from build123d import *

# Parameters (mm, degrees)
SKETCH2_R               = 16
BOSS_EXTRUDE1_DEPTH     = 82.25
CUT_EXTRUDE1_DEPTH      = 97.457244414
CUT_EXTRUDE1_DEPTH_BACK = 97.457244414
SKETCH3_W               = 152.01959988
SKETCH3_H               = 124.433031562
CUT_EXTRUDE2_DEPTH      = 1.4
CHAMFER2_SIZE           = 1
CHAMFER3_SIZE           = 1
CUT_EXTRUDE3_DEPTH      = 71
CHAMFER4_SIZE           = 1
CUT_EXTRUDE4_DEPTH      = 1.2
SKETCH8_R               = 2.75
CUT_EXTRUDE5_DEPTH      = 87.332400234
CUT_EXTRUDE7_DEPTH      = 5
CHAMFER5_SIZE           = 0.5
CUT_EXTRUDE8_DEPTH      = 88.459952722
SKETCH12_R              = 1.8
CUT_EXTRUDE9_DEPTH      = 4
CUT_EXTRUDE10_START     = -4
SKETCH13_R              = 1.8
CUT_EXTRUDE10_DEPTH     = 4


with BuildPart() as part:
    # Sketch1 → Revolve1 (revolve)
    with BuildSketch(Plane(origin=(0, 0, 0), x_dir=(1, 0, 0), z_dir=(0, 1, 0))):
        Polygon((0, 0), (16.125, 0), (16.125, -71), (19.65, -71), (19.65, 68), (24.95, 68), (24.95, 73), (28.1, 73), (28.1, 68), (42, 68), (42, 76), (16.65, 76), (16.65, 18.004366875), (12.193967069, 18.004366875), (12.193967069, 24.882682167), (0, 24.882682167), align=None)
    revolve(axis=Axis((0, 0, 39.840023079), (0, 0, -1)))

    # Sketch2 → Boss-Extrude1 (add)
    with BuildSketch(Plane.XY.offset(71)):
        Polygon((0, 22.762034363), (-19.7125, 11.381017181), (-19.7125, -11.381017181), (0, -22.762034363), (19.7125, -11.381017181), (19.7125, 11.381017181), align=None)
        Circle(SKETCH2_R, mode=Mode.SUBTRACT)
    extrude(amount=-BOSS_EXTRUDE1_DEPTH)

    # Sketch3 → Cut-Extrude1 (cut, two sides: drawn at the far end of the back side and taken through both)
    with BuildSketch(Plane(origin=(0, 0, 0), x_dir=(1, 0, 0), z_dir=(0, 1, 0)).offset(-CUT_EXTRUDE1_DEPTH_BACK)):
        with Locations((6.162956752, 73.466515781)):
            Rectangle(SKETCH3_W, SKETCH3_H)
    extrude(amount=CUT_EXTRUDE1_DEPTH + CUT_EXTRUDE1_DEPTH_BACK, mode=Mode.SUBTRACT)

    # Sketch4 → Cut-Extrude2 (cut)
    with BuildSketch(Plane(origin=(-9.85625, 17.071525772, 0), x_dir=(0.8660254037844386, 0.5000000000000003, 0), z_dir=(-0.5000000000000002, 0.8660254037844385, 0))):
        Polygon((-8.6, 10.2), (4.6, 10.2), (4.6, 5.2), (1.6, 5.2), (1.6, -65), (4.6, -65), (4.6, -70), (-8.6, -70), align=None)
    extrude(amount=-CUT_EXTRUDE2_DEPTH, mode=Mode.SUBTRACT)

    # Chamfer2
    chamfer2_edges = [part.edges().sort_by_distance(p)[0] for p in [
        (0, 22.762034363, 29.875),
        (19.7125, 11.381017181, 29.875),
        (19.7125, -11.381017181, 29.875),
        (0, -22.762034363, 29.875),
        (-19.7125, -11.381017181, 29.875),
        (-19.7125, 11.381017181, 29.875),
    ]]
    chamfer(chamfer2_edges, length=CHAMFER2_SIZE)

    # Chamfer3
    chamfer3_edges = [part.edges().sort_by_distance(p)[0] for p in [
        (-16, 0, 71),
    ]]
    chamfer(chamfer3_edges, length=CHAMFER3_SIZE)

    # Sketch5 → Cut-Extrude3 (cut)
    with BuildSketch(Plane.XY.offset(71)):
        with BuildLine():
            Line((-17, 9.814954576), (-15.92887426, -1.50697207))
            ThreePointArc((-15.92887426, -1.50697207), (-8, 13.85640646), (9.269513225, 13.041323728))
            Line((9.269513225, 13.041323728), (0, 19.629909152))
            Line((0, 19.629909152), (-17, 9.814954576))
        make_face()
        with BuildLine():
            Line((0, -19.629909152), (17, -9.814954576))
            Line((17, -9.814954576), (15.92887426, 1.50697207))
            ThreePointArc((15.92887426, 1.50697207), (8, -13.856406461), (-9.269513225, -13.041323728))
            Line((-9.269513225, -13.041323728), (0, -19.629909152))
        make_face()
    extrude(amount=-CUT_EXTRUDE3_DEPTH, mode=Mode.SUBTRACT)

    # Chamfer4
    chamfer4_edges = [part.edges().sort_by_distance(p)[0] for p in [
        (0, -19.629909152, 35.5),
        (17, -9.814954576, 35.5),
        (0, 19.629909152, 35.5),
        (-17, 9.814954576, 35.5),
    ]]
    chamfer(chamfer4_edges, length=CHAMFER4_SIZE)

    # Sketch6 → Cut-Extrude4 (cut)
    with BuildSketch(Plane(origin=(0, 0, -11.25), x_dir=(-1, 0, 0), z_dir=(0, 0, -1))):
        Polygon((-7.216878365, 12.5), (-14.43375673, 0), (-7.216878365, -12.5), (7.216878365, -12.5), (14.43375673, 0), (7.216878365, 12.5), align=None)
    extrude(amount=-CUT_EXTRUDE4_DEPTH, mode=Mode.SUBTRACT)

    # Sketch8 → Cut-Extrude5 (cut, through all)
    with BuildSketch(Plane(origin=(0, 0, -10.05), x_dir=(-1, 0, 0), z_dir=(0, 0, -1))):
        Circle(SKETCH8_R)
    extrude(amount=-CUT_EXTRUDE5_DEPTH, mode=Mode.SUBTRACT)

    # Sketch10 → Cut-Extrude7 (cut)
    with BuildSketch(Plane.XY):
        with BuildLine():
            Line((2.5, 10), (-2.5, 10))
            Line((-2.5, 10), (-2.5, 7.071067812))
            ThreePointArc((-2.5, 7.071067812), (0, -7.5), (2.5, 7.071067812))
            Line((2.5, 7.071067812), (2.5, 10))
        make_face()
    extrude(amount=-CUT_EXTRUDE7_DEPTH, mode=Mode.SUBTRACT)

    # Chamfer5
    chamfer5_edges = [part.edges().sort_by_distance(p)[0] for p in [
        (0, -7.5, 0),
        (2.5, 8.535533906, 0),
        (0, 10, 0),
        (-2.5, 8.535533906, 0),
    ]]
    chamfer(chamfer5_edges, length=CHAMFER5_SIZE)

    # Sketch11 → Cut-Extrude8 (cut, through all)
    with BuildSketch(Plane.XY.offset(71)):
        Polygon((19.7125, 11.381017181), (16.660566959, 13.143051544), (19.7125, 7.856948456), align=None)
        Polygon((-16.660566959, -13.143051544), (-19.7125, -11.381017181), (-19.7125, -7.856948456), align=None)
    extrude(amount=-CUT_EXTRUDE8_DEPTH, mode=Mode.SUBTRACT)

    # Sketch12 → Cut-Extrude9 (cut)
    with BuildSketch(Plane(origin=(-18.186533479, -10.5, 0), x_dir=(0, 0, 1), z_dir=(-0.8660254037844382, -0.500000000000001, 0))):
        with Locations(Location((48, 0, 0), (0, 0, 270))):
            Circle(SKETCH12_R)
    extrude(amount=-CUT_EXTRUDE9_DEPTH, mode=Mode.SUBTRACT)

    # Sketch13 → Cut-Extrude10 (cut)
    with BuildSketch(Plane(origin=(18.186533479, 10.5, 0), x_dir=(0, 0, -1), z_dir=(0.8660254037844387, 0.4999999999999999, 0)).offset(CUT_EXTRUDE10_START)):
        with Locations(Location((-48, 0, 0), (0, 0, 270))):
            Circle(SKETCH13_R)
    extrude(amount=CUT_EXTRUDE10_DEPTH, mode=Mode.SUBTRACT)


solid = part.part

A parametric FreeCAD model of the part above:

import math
import FreeCAD as App
import Part
import Sketcher
from FreeCAD import Vector
Q = App.Units.Quantity


def edges_at(feature, points):
    """Names of the edges that pass closest to the given points."""
    edges = feature.Shape.Edges
    near = lambda p: min(range(len(edges)), key=lambda i: edges[i].distToShape(Part.Vertex(*p))[0])
    return sorted({f"Edge{near(p) + 1}" for p in points})


def add_polygon(sketch, points):
    """Adds a closed chain of lines whose ends are joined by coincident constraints."""
    first, n = sketch.GeometryCount, len(points)
    for a, b in zip(points, points[1:] + points[:1]):
        sketch.addGeometry(Part.LineSegment(App.Vector(*a, 0), App.Vector(*b, 0)), False)
    for i in range(n):
        sketch.addConstraint(Sketcher.Constraint("Coincident", first + i, 2, first + (i + 1) % n, 1))

doc = App.newDocument("Part")
body = doc.addObject("PartDesign::Body", "Body")

# Sketch on XZ plane
sketch1 = body.newObject("Sketcher::SketchObject", "Sketch")
sketch1.AttachmentSupport = (doc.getObject("XZ_Plane"), [""])
sketch1.MapMode = "FlatFace"
add_polygon(sketch1, [(0, 0), (16.1, 0), (16.1, 71), (19.6, 71), (19.6, -68), (24.9, -68), (24.9, -73), (28.1, -73), (28.1, -68), (42, -68), (42, -76), (16.6, -76), (16.6, -18), (12.2, -18), (12.2, -24.9), (0, -24.9)])  # lines 0-15
sketch1.addConstraint(Sketcher.Constraint("Horizontal", 0))
sketch1.addConstraint(Sketcher.Constraint("Vertical", 1))
sketch1.addConstraint(Sketcher.Constraint("Horizontal", 2))
sketch1.addConstraint(Sketcher.Constraint("Vertical", 3))
sketch1.addConstraint(Sketcher.Constraint("Horizontal", 4))
sketch1.addConstraint(Sketcher.Constraint("Vertical", 5))
sketch1.addConstraint(Sketcher.Constraint("Horizontal", 6))
sketch1.addConstraint(Sketcher.Constraint("Vertical", 7))
sketch1.addConstraint(Sketcher.Constraint("Horizontal", 8))
sketch1.addConstraint(Sketcher.Constraint("Vertical", 9))
sketch1.addConstraint(Sketcher.Constraint("Horizontal", 10))
sketch1.addConstraint(Sketcher.Constraint("Vertical", 11))
sketch1.addConstraint(Sketcher.Constraint("Horizontal", 12))
sketch1.addConstraint(Sketcher.Constraint("Vertical", 13))
sketch1.addConstraint(Sketcher.Constraint("Horizontal", 14))
sketch1.addConstraint(Sketcher.Constraint("Vertical", 15))
sketch1.addConstraint(Sketcher.Constraint("Coincident", 15, 2, -1, 1))
sketch1.addConstraint(Sketcher.Constraint("Horizontal", 4, 2, 7, 2))
sketch1.addConstraint(Sketcher.Constraint("DistanceY", 1, 1, 1, 2, Q("71 mm")))
sketch1.addConstraint(Sketcher.Constraint("DistanceY", 3, 2, 3, 1, Q("139 mm")))
sketch1.addConstraint(Sketcher.Constraint("DistanceY", 5, 2, 5, 1, Q("5 mm")))
sketch1.addConstraint(Sketcher.Constraint("DistanceY", 9, 2, 9, 1, Q("8 mm")))
sketch1.addConstraint(Sketcher.Constraint("DistanceX", 4, 1, 4, 2, Q("5.3 mm")))
sketch1.addConstraint(Sketcher.Constraint("DistanceX", 8, 1, 8, 2, Q("13.9 mm")))
sketch1.addConstraint(Sketcher.Constraint("DistanceX", -1, 1, 8, 2, Q("42 mm")))
sketch1.addConstraint(Sketcher.Constraint("DistanceX", 10, 2, 3, 2, Q("3 mm")))
sketch1.addConstraint(Sketcher.Constraint("DistanceX", 6, 1, 6, 2, Q("3.15 mm")))
sketch1.addConstraint(Sketcher.Constraint("DistanceX", 0, 1, 0, 2, Q("16.125 mm")))
sketch1.addConstraint(Sketcher.Constraint("DistanceX", 12, 2, 12, 1, Q("4.456033 mm")))
sketch1.addConstraint(Sketcher.Constraint("DistanceY", 11, 1, 11, 2, Q("57.995633 mm")))
sketch1.addConstraint(Sketcher.Constraint("DistanceY", 13, 2, 13, 1, Q("6.878315 mm")))
revolution = body.newObject("PartDesign::Revolution", "Revolution")
revolution.Profile = sketch1
revolution.ReferenceAxis = (sketch1, ["V_Axis"])
revolution.Angle = 360

# Sketch on XY plane
sketch2 = body.newObject("Sketcher::SketchObject", "Sketch001")
sketch2.AttachmentSupport = (doc.getObject("XY_Plane"), [""])
sketch2.MapMode = "FlatFace"
sketch2.AttachmentOffset = App.Placement(Vector(0, 0, 71), App.Rotation())
add_polygon(sketch2, [(0, 23), (-20, 11), (-20, -11), (0, -23), (20, -11), (20, 11)])  # lines 0-5
sketch2.addGeometry(Part.Circle(Vector(0, 0, 0), Vector(0, 0, 1), 16), False)  # 6
sketch2.addConstraint(Sketcher.Constraint("Vertical", 1))
sketch2.addConstraint(Sketcher.Constraint("Vertical", 4))
sketch2.addConstraint(Sketcher.Constraint("Coincident", 6, 3, -1, 1))
sketch2.addConstraint(Sketcher.Constraint("Symmetric", 0, 2, 3, 2, -1, 1))
sketch2.addConstraint(Sketcher.Constraint("Symmetric", 2, 2, 5, 2, -1, 1))
sketch2.addConstraint(Sketcher.Constraint("PointOnObject", 2, 2, -2))
sketch2.addConstraint(Sketcher.Constraint("Parallel", 2, 5))
sketch2.addConstraint(Sketcher.Constraint("Horizontal", 1, 2, 3, 2))
sketch2.addConstraint(Sketcher.Constraint("Diameter", 6, Q("32 mm")))
sketch2.addConstraint(Sketcher.Constraint("Angle", 0, Q("-150 deg")))
sketch2.addConstraint(Sketcher.Constraint("DistanceX", 1, 2, 3, 2, Q("39.425 mm")))
sketch2.addConstraint(Sketcher.Constraint("DistanceY", 1, 2, 1, 1, Q("22.762034 mm")))
pad1 = body.newObject("PartDesign::Pad", "Pad")
pad1.Profile = sketch2
pad1.Length = 82.25
pad1.Reversed = True

# Sketch on XZ plane
sketch3 = body.newObject("Sketcher::SketchObject", "Sketch002")
sketch3.AttachmentSupport = (doc.getObject("XZ_Plane"), [""])
sketch3.MapMode = "FlatFace"
add_polygon(sketch3, [(-70, -136), (-70, -11), (82, -11), (82, -136)])  # lines 0-3
sketch3.addConstraint(Sketcher.Constraint("Vertical", 0))
sketch3.addConstraint(Sketcher.Constraint("Horizontal", 1))
sketch3.addConstraint(Sketcher.Constraint("Vertical", 2))
sketch3.addConstraint(Sketcher.Constraint("Horizontal", 3))
sketch3.addConstraint(Sketcher.Constraint("DistanceY", 0, 2, -1, 1, Q("11.25 mm")))
sketch3.addConstraint(Sketcher.Constraint("DistanceX", 1, 1, 1, 2, Q("152.0196 mm")))
sketch3.addConstraint(Sketcher.Constraint("DistanceY", 0, 1, 0, 2, Q("124.433032 mm")))
sketch3.addConstraint(Sketcher.Constraint("DistanceX", 0, 2, -1, 1, Q("69.846843 mm")))
pocket1 = body.newObject("PartDesign::Pocket", "Pocket")
pocket1.Profile = sketch3
pocket1.Type = "ThroughAll"
pocket1.Midplane = True

# Sketch on an angled plane
sketch4 = body.newObject("Sketcher::SketchObject", "Sketch003")
sketch4.Placement = App.Placement(Vector(-9.85625, 17.071526, 0), App.Rotation(Vector(0.866025404, 0.5, 0), Vector(0, 0, -1), Vector(-0.5, 0.866025404, 0), "ZXY"))
add_polygon(sketch4, [(4.6, 10.2), (-8.6, 10.2), (-8.6, -70), (4.6, -70), (4.6, -65), (1.6, -65), (1.6, 5.2), (4.6, 5.2)])  # lines 0-7
sketch4.addConstraint(Sketcher.Constraint("Horizontal", 0))
sketch4.addConstraint(Sketcher.Constraint("Vertical", 1))
sketch4.addConstraint(Sketcher.Constraint("Horizontal", 2))
sketch4.addConstraint(Sketcher.Constraint("Vertical", 3))
sketch4.addConstraint(Sketcher.Constraint("Horizontal", 4))
sketch4.addConstraint(Sketcher.Constraint("Vertical", 5))
sketch4.addConstraint(Sketcher.Constraint("Horizontal", 6))
sketch4.addConstraint(Sketcher.Constraint("Vertical", 7))
sketch4.addConstraint(Sketcher.Constraint("Vertical", 3, 2, 6, 2))
sketch4.addConstraint(Sketcher.Constraint("Equal", 3, 7))
sketch4.addConstraint(Sketcher.Constraint("DistanceX", 4, 2, 4, 1, Q("3 mm")))
sketch4.addConstraint(Sketcher.Constraint("DistanceY", 3, 1, 3, 2, Q("5 mm")))
sketch4.addConstraint(Sketcher.Constraint("DistanceX", 0, 2, 0, 1, Q("13.2 mm")))
sketch4.addConstraint(Sketcher.Constraint("DistanceY", 1, 2, 1, 1, Q("80.2 mm")))
sketch4.addConstraint(Sketcher.Constraint("DistanceY", 1, 2, -1, 1, Q("70 mm")))
sketch4.addConstraint(Sketcher.Constraint("DistanceX", 0, 2, -1, 1, Q("8.6 mm")))
pocket2 = body.newObject("PartDesign::Pocket", "Pocket001")
pocket2.Profile = sketch4
pocket2.Length = 1.4
doc.recompute()

chamfer = body.newObject("PartDesign::Chamfer", "Chamfer")
chamfer.Base = (pocket2, edges_at(pocket2, [
    (0, 22.762, 29.875),
    (19.712, 11.381, 29.875),
    (19.712, -11.381, 29.875),
    (0, -22.762, 29.875),
    (-19.712, -11.381, 29.875),
    (-19.712, 11.381, 29.875),
]))
chamfer.Size = 1
doc.recompute()

chamfer2 = body.newObject("PartDesign::Chamfer", "Chamfer001")
chamfer2.Base = (chamfer, edges_at(chamfer, [(-16, 0, 71)]))
chamfer2.Size = 1

# Sketch on XY plane
sketch5 = body.newObject("Sketcher::SketchObject", "Sketch004")
sketch5.AttachmentSupport = (doc.getObject("XY_Plane"), [""])
sketch5.MapMode = "FlatFace"
sketch5.AttachmentOffset = App.Placement(Vector(0, 0, 71), App.Rotation())
sketch5.addGeometry(Part.LineSegment(Vector(-17, 10, 0), Vector(-16, -2, 0)), False)
sketch5.addGeometry(Part.ArcOfCircle(Part.Circle(Vector(0, 0, 0), Vector(0, 0, 1), 16), math.radians(55), math.radians(185)), False)
sketch5.addGeometry(Part.LineSegment(Vector(9, 13, 0), Vector(0, 20, 0)), False)
sketch5.addGeometry(Part.LineSegment(Vector(0, 20, 0), Vector(-17, 10, 0)), False)
sketch5.addGeometry(Part.LineSegment(Vector(0, -20, 0), Vector(17, -10, 0)), False)
sketch5.addGeometry(Part.LineSegment(Vector(17, -10, 0), Vector(16, 2, 0)), False)
sketch5.addGeometry(Part.ArcOfCircle(Part.Circle(Vector(0, 0, 0), Vector(0, 0, 1), 16), math.radians(-125), math.radians(5)), False)
sketch5.addGeometry(Part.LineSegment(Vector(-9, -13, 0), Vector(0, -20, 0)), False)
sketch5.addConstraint(Sketcher.Constraint("Tangent", 0, 2, 1, 2))
sketch5.addConstraint(Sketcher.Constraint("Tangent", 1, 1, 2, 1))
sketch5.addConstraint(Sketcher.Constraint("Coincident", 2, 2, 3, 1))
sketch5.addConstraint(Sketcher.Constraint("Coincident", 3, 2, 0, 1))
sketch5.addConstraint(Sketcher.Constraint("Coincident", 4, 2, 5, 1))
sketch5.addConstraint(Sketcher.Constraint("Tangent", 5, 2, 6, 2))
sketch5.addConstraint(Sketcher.Constraint("Tangent", 6, 1, 7, 1))
sketch5.addConstraint(Sketcher.Constraint("Coincident", 7, 2, 4, 1))
sketch5.addConstraint(Sketcher.Constraint("Coincident", 1, 3, -1, 1))
sketch5.addConstraint(Sketcher.Constraint("Coincident", 6, 3, -1, 1))
sketch5.addConstraint(Sketcher.Constraint("Equal", 1, 6))
sketch5.addConstraint(Sketcher.Constraint("Symmetric", 3, 2, 4, 2, -1, 1))
sketch5.addConstraint(Sketcher.Constraint("Symmetric", 2, 2, 7, 2, -1, 1))
sketch5.addConstraint(Sketcher.Constraint("PointOnObject", 2, 2, -2))
sketch5.addConstraint(Sketcher.Constraint("Equal", 0, 2))
sketch5.addConstraint(Sketcher.Constraint("Radius", 1, Q("16 mm")))
sketch5.addConstraint(Sketcher.Constraint("Angle", 3, Q("-150 deg")))
sketch5.addConstraint(Sketcher.Constraint("DistanceX", 3, 2, -1, 1, Q("17 mm")))
pocket3 = body.newObject("PartDesign::Pocket", "Pocket002")
pocket3.Profile = sketch5
pocket3.Length = 71
doc.recompute()

chamfer3 = body.newObject("PartDesign::Chamfer", "Chamfer002")
chamfer3.Base = (pocket3, edges_at(pocket3, [
    (0, -19.63, 35.5),
    (17, -9.815, 35.5),
    (0, 19.63, 35.5),
    (-17, 9.815, 35.5),
]))
chamfer3.Size = 1

# Sketch on XY plane
sketch6 = body.newObject("Sketcher::SketchObject", "Sketch005")
sketch6.AttachmentSupport = (doc.getObject("XY_Plane"), [""])
sketch6.MapMode = "FlatFace"
sketch6.AttachmentOffset = App.Placement(Vector(0, 0, -11.25), App.Rotation())
add_polygon(sketch6, [(7, 12), (14, 0), (7, -12), (-7, -12), (-14, 0), (-7, 12)])  # lines 0-5
sketch6.addConstraint(Sketcher.Constraint("Horizontal", 2))
sketch6.addConstraint(Sketcher.Constraint("Horizontal", 5))
sketch6.addConstraint(Sketcher.Constraint("Symmetric", 0, 2, 3, 2, -1, 1))
sketch6.addConstraint(Sketcher.Constraint("Symmetric", 1, 2, 4, 2, -1, 1))
sketch6.addConstraint(Sketcher.Constraint("PointOnObject", 0, 2, -1))
sketch6.addConstraint(Sketcher.Constraint("Parallel", 0, 3))
sketch6.addConstraint(Sketcher.Constraint("Vertical", 2, 2, 4, 2))
sketch6.addConstraint(Sketcher.Constraint("Angle", 0, Q("-60 deg")))
sketch6.addConstraint(Sketcher.Constraint("DistanceY", 2, 2, 4, 2, Q("25 mm")))
sketch6.addConstraint(Sketcher.Constraint("DistanceX", 2, 2, 2, 1, Q("14.433757 mm")))
pocket4 = body.newObject("PartDesign::Pocket", "Pocket003")
pocket4.Profile = sketch6
pocket4.Length = 1.2
pocket4.Reversed = True

# Sketch on XY plane
sketch7 = body.newObject("Sketcher::SketchObject", "Sketch006")
sketch7.AttachmentSupport = (doc.getObject("XY_Plane"), [""])
sketch7.MapMode = "FlatFace"
sketch7.AttachmentOffset = App.Placement(Vector(0, 0, -10.05), App.Rotation())
sketch7.addGeometry(Part.Circle(Vector(0, 0, 0), Vector(0, 0, 1), 2.8), False)
sketch7.addConstraint(Sketcher.Constraint("Coincident", 0, 3, -1, 1))
sketch7.addConstraint(Sketcher.Constraint("Diameter", 0, Q("5.5 mm")))
pocket5 = body.newObject("PartDesign::Pocket", "Pocket004")
pocket5.Profile = sketch7
pocket5.Type = "ThroughAll"
pocket5.Reversed = True

# Sketch on XY plane
sketch8 = body.newObject("Sketcher::SketchObject", "Sketch007")
sketch8.AttachmentSupport = (doc.getObject("XY_Plane"), [""])
sketch8.MapMode = "FlatFace"
sketch8.addGeometry(Part.LineSegment(Vector(2.5, 10, 0), Vector(-2.5, 10, 0)), False)
sketch8.addGeometry(Part.LineSegment(Vector(-2.5, 10, 0), Vector(-2.5, 7.1, 0)), False)
sketch8.addGeometry(Part.ArcOfCircle(Part.Circle(Vector(0, 0, 0), Vector(0, 0, 1), 7.5), math.radians(109), math.radians(431)), False)
sketch8.addGeometry(Part.LineSegment(Vector(2.5, 7.1, 0), Vector(2.5, 10, 0)), False)
sketch8.addConstraint(Sketcher.Constraint("Coincident", 0, 2, 1, 1))
sketch8.addConstraint(Sketcher.Constraint("Coincident", 1, 2, 2, 1))
sketch8.addConstraint(Sketcher.Constraint("Coincident", 2, 2, 3, 1))
sketch8.addConstraint(Sketcher.Constraint("Coincident", 3, 2, 0, 1))
sketch8.addConstraint(Sketcher.Constraint("Horizontal", 0))
sketch8.addConstraint(Sketcher.Constraint("Vertical", 1))
sketch8.addConstraint(Sketcher.Constraint("Vertical", 3))
sketch8.addConstraint(Sketcher.Constraint("Coincident", 2, 3, -1, 1))
sketch8.addConstraint(Sketcher.Constraint("Horizontal", 1, 2, 2, 2))
sketch8.addConstraint(Sketcher.Constraint("Radius", 2, Q("7.5 mm")))
sketch8.addConstraint(Sketcher.Constraint("DistanceX", 0, 2, 0, 1, Q("5 mm")))
sketch8.addConstraint(Sketcher.Constraint("DistanceY", -1, 1, 0, 2, Q("10 mm")))
pocket6 = body.newObject("PartDesign::Pocket", "Pocket005")
pocket6.Profile = sketch8
pocket6.Length = 5
doc.recompute()

chamfer4 = body.newObject("PartDesign::Chamfer", "Chamfer003")
chamfer4.Base = (pocket6, edges_at(pocket6, [
    (0, -7.5, 0),
    (2.5, 8.536, 0),
    (0, 10, 0),
    (-2.5, 8.536, 0),
]))
chamfer4.Size = 0.5

# Sketch on XY plane
sketch9 = body.newObject("Sketcher::SketchObject", "Sketch008")
sketch9.AttachmentSupport = (doc.getObject("XY_Plane"), [""])
sketch9.MapMode = "FlatFace"
sketch9.AttachmentOffset = App.Placement(Vector(0, 0, 71), App.Rotation())
add_polygon(sketch9, [(19.7, 11.4), (16.7, 13.1), (19.7, 7.9)])  # lines 0-2
add_polygon(sketch9, [(-19.7, -11.4), (-16.7, -13.1), (-19.7, -7.9)])  # lines 3-5
sketch9.addConstraint(Sketcher.Constraint("Vertical", 2))
sketch9.addConstraint(Sketcher.Constraint("Vertical", 5))
sketch9.addConstraint(Sketcher.Constraint("Symmetric", 0, 2, 3, 2, -1, 1))
sketch9.addConstraint(Sketcher.Constraint("Symmetric", 1, 2, 4, 2, -1, 1))
sketch9.addConstraint(Sketcher.Constraint("Parallel", 0, 3))
sketch9.addConstraint(Sketcher.Constraint("Angle", 0, Q("150 deg")))
sketch9.addConstraint(Sketcher.Constraint("Angle", 1, Q("-60 deg")))
sketch9.addConstraint(Sketcher.Constraint("DistanceY", 3, 2, 1, 2, Q("21 mm")))
sketch9.addConstraint(Sketcher.Constraint("DistanceX", 4, 2, 1, 2, Q("39.425 mm")))
sketch9.addConstraint(Sketcher.Constraint("DistanceY", 2, 1, 2, 2, Q("3.524069 mm")))
pocket7 = body.newObject("PartDesign::Pocket", "Pocket006")
pocket7.Profile = sketch9
pocket7.Type = "ThroughAll"

# Sketch on an angled plane
sketch10 = body.newObject("Sketcher::SketchObject", "Sketch009")
sketch10.Placement = App.Placement(Vector(-18.186533, -10.5, 0), App.Rotation(Vector(0, 0, 1), Vector(-0.5, 0.866025404, 0), Vector(-0.866025404, -0.5, 0), "ZXY"))
sketch10.addGeometry(Part.Circle(Vector(48, 0, 0), Vector(0, 0, 1), 1.8), False)
sketch10.addConstraint(Sketcher.Constraint("PointOnObject", 0, 3, -1))
sketch10.addConstraint(Sketcher.Constraint("Diameter", 0, Q("3.6 mm")))
sketch10.addConstraint(Sketcher.Constraint("DistanceX", -1, 1, 0, 3, Q("48 mm")))
pocket8 = body.newObject("PartDesign::Pocket", "Pocket007")
pocket8.Profile = sketch10
pocket8.Length = 4

# Sketch on an angled plane
sketch11 = body.newObject("Sketcher::SketchObject", "Sketch010")
sketch11.Placement = App.Placement(Vector(14.722432, 8.5, 0), App.Rotation(Vector(0, 0, -1), Vector(-0.5, 0.866025404, 0), Vector(0.866025404, 0.5, 0), "ZXY"))
sketch11.addGeometry(Part.Circle(Vector(-48, 0, 0), Vector(0, 0, 1), 1.8), False)
sketch11.addConstraint(Sketcher.Constraint("PointOnObject", 0, 3, -1))
sketch11.addConstraint(Sketcher.Constraint("Diameter", 0, Q("3.6 mm")))
sketch11.addConstraint(Sketcher.Constraint("DistanceX", 0, 3, -1, 1, Q("48 mm")))
pocket9 = body.newObject("PartDesign::Pocket", "Pocket008")
pocket9.Profile = sketch11
pocket9.Length = 4
pocket9.Reversed = True

doc.recompute()
